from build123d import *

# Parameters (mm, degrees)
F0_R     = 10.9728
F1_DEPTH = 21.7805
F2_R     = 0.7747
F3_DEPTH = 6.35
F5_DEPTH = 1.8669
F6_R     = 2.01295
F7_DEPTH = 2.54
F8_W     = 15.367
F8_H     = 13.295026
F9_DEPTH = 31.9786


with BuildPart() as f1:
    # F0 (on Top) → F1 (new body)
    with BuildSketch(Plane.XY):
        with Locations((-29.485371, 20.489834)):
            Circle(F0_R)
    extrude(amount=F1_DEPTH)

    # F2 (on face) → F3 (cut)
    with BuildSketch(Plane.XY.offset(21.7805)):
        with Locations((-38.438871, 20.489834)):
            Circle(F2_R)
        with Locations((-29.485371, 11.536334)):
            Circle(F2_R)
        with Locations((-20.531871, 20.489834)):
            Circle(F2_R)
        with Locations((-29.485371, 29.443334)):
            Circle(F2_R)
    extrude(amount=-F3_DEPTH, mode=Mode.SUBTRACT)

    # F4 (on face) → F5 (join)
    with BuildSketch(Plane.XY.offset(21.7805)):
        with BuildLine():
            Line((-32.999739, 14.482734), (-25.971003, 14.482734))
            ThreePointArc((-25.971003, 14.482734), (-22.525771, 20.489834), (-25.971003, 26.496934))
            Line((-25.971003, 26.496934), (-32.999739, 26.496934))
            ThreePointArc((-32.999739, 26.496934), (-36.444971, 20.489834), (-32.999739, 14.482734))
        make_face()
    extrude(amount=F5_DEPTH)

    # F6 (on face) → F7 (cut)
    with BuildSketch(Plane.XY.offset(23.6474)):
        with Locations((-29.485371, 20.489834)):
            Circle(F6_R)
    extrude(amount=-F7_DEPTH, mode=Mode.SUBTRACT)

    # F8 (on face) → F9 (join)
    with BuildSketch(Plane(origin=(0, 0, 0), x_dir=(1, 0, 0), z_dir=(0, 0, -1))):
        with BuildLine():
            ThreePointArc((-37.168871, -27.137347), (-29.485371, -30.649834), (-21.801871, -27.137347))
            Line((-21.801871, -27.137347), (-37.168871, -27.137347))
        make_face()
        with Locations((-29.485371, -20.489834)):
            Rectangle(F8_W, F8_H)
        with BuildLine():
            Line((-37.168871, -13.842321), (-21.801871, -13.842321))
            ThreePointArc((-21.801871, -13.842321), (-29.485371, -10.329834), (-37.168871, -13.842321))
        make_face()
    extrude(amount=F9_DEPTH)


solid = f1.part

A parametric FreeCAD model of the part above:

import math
import FreeCAD as App
import Part
import Sketcher
Q = App.Units.Quantity

doc = App.newDocument("Part")
body = doc.addObject("PartDesign::Body", "Body")

sketch1 = body.newObject("Sketcher::SketchObject", "Sketch")
sketch1.AttachmentSupport = (doc.getObject("XY_Plane"), [""])
sketch1.MapMode = "FlatFace"
sketch1.addGeometry(Part.Circle(App.Vector(-29, 20, 0), App.Vector(0, 0, 1), 11), False)
sketch1.addConstraint(Sketcher.Constraint("Diameter", 0, Q("0.864 in")))
sketch1.addConstraint(Sketcher.Constraint("DistanceX", 0, 3, -1, 1, Q("29.485371 mm")))
sketch1.addConstraint(Sketcher.Constraint("DistanceY", -1, 1, 0, 3, Q("20.489834 mm")))
pad1 = body.newObject("PartDesign::Pad", "Pad")
pad1.Profile = sketch1
pad1.Length = Q("0.8575 in")

sketch2 = body.newObject("Sketcher::SketchObject", "Sketch001")
sketch2.AttachmentSupport = (doc.getObject("XY_Plane"), [""])
sketch2.MapMode = "FlatFace"
sketch2.AttachmentOffset = App.Placement(App.Vector(0, 0, 0.8575 * 25.4), App.Rotation())
sketch2.addGeometry(Part.Circle(App.Vector(-38.4, 20.5, 0), App.Vector(0, 0, 1), 0.8), False)
sketch2.addGeometry(Part.Circle(App.Vector(-29.5, 11.5, 0), App.Vector(0, 0, 1), 0.8), False)
sketch2.addGeometry(Part.Circle(App.Vector(-20.5, 20.5, 0), App.Vector(0, 0, 1), 0.8), False)
sketch2.addGeometry(Part.Circle(App.Vector(-29.5, 29.4, 0), App.Vector(0, 0, 1), 0.8), False)
sketch2.addConstraint(Sketcher.Constraint("Equal", 0, 1))
sketch2.addConstraint(Sketcher.Constraint("Equal", 1, 2))
sketch2.addConstraint(Sketcher.Constraint("Equal", 2, 3))
sketch2.addConstraint(Sketcher.Constraint("Horizontal", 0, 3, 2, 3))
sketch2.addConstraint(Sketcher.Constraint("Vertical", 1, 3, 3, 3))
sketch2.addConstraint(Sketcher.Constraint("Diameter", 0, Q("0.061 in")))
sketch2.addConstraint(Sketcher.Constraint("DistanceX", 0, 3, 2, 3, Q("0.705 in")))
sketch2.addConstraint(Sketcher.Constraint("DistanceY", 1, 3, 3, 3, Q("0.705 in")))
sketch2.addConstraint(Sketcher.Constraint("DistanceX", 0, 3, 1, 3, Q("0.3525 in")))
sketch2.addConstraint(Sketcher.Constraint("DistanceY", 1, 3, 0, 3, Q("0.3525 in")))
sketch2.addConstraint(Sketcher.Constraint("DistanceX", 0, 3, -1, 1, Q("38.438871 mm")))
sketch2.addConstraint(Sketcher.Constraint("DistanceY", -1, 1, 0, 3, Q("20.489834 mm")))
pocket1 = body.newObject("PartDesign::Pocket", "Pocket")
pocket1.Profile = sketch2
pocket1.Length = Q("0.25 in")

sketch3 = body.newObject("Sketcher::SketchObject", "Sketch002")
sketch3.AttachmentSupport = (doc.getObject("XY_Plane"), [""])
sketch3.MapMode = "FlatFace"
sketch3.AttachmentOffset = App.Placement(App.Vector(0, 0, 0.8575 * 25.4), App.Rotation())
sketch3.addGeometry(Part.LineSegment(App.Vector(-33, 14, 0), App.Vector(-26, 14, 0)), False)
sketch3.addGeometry(Part.ArcOfCircle(Part.Circle(App.Vector(-29, 20, 0), App.Vector(0, 0, 1), 7), math.radians(-60), math.radians(60)), False)
sketch3.addGeometry(Part.LineSegment(App.Vector(-26, 26, 0), App.Vector(-33, 26, 0)), False)
sketch3.addGeometry(Part.ArcOfCircle(Part.Circle(App.Vector(-29, 20, 0), App.Vector(0, 0, 1), 7), math.radians(120), math.radians(240)), False)
sketch3.addConstraint(Sketcher.Constraint("Coincident", 0, 2, 1, 1))
sketch3.addConstraint(Sketcher.Constraint("Coincident", 1, 2, 2, 1))
sketch3.addConstraint(Sketcher.Constraint("Coincident", 2, 2, 3, 1))
sketch3.addConstraint(Sketcher.Constraint("Coincident", 3, 2, 0, 1))
sketch3.addConstraint(Sketcher.Constraint("Horizontal", 0))
sketch3.addConstraint(Sketcher.Constraint("Horizontal", 2))
sketch3.addConstraint(Sketcher.Constraint("Coincident", 3, 3, 1, 3))
sketch3.addConstraint(Sketcher.Constraint("Equal", 1, 3))
sketch3.addConstraint(Sketcher.Constraint("Vertical", 0, 2, 1, 2))
sketch3.addConstraint(Sketcher.Constraint("Radius", 1, Q("0.274 in")))
sketch3.addConstraint(Sketcher.Constraint("DistanceY", 0, 2, 1, 2, Q("0.473 in")))
sketch3.addConstraint(Sketcher.Constraint("DistanceX", 1, 3, -1, 1, Q("29.485371 mm")))
sketch3.addConstraint(Sketcher.Constraint("DistanceY", -1, 1, 1, 3, Q("20.489834 mm")))
pad2 = body.newObject("PartDesign::Pad", "Pad001")
pad2.Profile = sketch3
pad2.Length = Q("0.0735 in")

sketch4 = body.newObject("Sketcher::SketchObject", "Sketch003")
sketch4.AttachmentSupport = (doc.getObject("XY_Plane"), [""])
sketch4.MapMode = "FlatFace"
sketch4.AttachmentOffset = App.Placement(App.Vector(0, 0, 0.931 * 25.4), App.Rotation())
sketch4.addGeometry(Part.Circle(App.Vector(-29.5, 20.5, 0), App.Vector(0, 0, 1), 2), False)
sketch4.addConstraint(Sketcher.Constraint("Diameter", 0, Q("0.1585 in")))
sketch4.addConstraint(Sketcher.Constraint("DistanceX", 0, 3, -1, 1, Q("29.485371 mm")))
sketch4.addConstraint(Sketcher.Constraint("DistanceY", -1, 1, 0, 3, Q("20.489834 mm")))
pocket2 = body.newObject("PartDesign::Pocket", "Pocket001")
pocket2.Profile = sketch4
pocket2.Length = Q("0.1 in")

sketch5 = body.newObject("Sketcher::SketchObject", "Sketch004")
sketch5.AttachmentSupport = (doc.getObject("XY_Plane"), [""])
sketch5.MapMode = "FlatFace"
sketch5.addGeometry(Part.ArcOfCircle(Part.Circle(App.Vector(-29, 20, 0), App.Vector(0, 0, 1), 10), math.radians(41), math.radians(139)), False)
sketch5.addGeometry(Part.LineSegment(App.Vector(-22, 27, 0), App.Vector(-22, 14, 0)), False)
sketch5.addGeometry(Part.ArcOfCircle(Part.Circle(App.Vector(-29, 20, 0), App.Vector(0, 0, 1), 10), math.radians(-139), math.radians(-41)), False)
sketch5.addGeometry(Part.LineSegment(App.Vector(-37, 14, 0), App.Vector(-37, 27, 0)), False)
sketch5.addConstraint(Sketcher.Constraint("Coincident", 0, 1, 1, 1))
sketch5.addConstraint(Sketcher.Constraint("Coincident", 1, 2, 2, 2))
sketch5.addConstraint(Sketcher.Constraint("Coincident", 2, 1, 3, 1))
sketch5.addConstraint(Sketcher.Constraint("Coincident", 3, 2, 0, 2))
sketch5.addConstraint(Sketcher.Constraint("Vertical", 1))
sketch5.addConstraint(Sketcher.Constraint("Vertical", 3))
sketch5.addConstraint(Sketcher.Constraint("Coincident", 2, 3, 0, 3))
sketch5.addConstraint(Sketcher.Constraint("Equal", 0, 2))
sketch5.addConstraint(Sketcher.Constraint("Horizontal", 1, 2, 2, 1))
sketch5.addConstraint(Sketcher.Constraint("Radius", 0, Q("0.4 in")))
sketch5.addConstraint(Sketcher.Constraint("DistanceX", 2, 1, 1, 2, Q("0.605 in")))
sketch5.addConstraint(Sketcher.Constraint("DistanceX", 0, 3, -1, 1, Q("29.485371 mm")))
sketch5.addConstraint(Sketcher.Constraint("DistanceY", -1, 1, 1, 2, Q("13.842321 mm")))
pad3 = body.newObject("PartDesign::Pad", "Pad002")
pad3.Profile = sketch5
pad3.Length = Q("1.259 in")
pad3.Reversed = True

doc.recompute()
